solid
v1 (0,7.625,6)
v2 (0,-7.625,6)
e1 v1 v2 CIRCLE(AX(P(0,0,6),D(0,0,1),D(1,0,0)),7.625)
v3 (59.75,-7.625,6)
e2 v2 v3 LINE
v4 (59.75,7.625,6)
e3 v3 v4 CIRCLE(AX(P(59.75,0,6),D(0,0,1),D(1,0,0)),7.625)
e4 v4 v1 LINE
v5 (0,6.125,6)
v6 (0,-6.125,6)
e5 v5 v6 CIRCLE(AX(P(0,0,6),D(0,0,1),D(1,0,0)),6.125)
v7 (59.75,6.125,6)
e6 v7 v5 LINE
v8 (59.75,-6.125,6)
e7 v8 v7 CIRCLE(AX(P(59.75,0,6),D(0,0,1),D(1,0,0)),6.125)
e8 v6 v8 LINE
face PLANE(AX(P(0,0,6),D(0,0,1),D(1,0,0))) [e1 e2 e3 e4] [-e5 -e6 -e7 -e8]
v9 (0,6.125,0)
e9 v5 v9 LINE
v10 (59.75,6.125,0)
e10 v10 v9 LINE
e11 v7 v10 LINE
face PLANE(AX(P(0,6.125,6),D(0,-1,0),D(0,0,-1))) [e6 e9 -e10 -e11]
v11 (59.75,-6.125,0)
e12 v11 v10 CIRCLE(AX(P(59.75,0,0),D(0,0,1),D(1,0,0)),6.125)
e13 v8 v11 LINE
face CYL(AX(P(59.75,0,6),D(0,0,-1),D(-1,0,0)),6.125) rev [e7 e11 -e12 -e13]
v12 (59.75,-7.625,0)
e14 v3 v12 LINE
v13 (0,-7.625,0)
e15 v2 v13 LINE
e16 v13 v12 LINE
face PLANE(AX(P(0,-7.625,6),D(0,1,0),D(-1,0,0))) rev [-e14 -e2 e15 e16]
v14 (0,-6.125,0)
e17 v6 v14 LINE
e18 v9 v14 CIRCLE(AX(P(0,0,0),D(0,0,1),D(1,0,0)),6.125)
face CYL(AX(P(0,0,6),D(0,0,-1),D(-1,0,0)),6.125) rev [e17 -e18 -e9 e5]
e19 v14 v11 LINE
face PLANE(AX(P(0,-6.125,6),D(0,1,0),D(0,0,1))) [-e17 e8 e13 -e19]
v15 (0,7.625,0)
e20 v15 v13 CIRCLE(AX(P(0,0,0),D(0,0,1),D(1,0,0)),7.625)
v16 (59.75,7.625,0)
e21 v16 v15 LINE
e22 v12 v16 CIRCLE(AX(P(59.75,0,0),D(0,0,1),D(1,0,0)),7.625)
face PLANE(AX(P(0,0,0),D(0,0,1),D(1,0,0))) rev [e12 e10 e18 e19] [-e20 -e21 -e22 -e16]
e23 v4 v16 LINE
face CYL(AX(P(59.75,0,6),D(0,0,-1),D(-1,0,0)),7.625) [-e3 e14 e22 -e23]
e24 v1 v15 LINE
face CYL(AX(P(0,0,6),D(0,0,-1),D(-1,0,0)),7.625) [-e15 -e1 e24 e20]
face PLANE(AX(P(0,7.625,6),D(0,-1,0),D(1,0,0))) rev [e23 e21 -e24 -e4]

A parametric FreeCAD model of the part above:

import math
import FreeCAD as App
import Part
import Sketcher

V = App.Vector

doc = App.newDocument("Part")
body = doc.addObject("PartDesign::Body", "Body")

# Sketch on XY plane
sketch1 = body.newObject("Sketcher::SketchObject", "Sketch")
sketch1.AttachmentSupport = (doc.getObject("XY_Plane"), [""])
sketch1.MapMode = "FlatFace"
sketch1.addGeometry(Part.LineSegment(V(59.75, 7.625, 0), V(0, 7.625, 0)), False)
sketch1.addGeometry(Part.ArcOfCircle(Part.Circle(V(0, 0, 0), V(0, 0, 1), 7.625), math.radians(90), math.radians(270)), False)
sketch1.addGeometry(Part.LineSegment(V(0, -7.625, 0), V(59.75, -7.625, 0)), False)
sketch1.addGeometry(Part.ArcOfCircle(Part.Circle(V(59.75, 0, 0), V(0, 0, 1), 7.625), math.radians(-90), math.radians(90)), False)
sketch1.addGeometry(Part.LineSegment(V(0, 6.125, 0), V(59.75, 6.125, 0)), False)
sketch1.addGeometry(Part.ArcOfCircle(Part.Circle(V(59.75, 0, 0), V(0, 0, 1), 6.125), math.radians(-90), math.radians(90)), False)
sketch1.addGeometry(Part.LineSegment(V(59.75, -6.125, 0), V(0, -6.125, 0)), False)
sketch1.addGeometry(Part.ArcOfCircle(Part.Circle(V(0, 0, 0), V(0, 0, 1), 6.125), math.radians(90), math.radians(270)), False)
sketch1.addConstraint(Sketcher.Constraint("Tangent", 0, 2, 1, 1))
sketch1.addConstraint(Sketcher.Constraint("Tangent", 1, 2, 2, 1))
sketch1.addConstraint(Sketcher.Constraint("Tangent", 2, 2, 3, 1))
sketch1.addConstraint(Sketcher.Constraint("Tangent", 3, 2, 0, 1))
sketch1.addConstraint(Sketcher.Constraint("Tangent", 4, 2, 5, 2))
sketch1.addConstraint(Sketcher.Constraint("Tangent", 5, 1, 6, 1))
sketch1.addConstraint(Sketcher.Constraint("Tangent", 6, 2, 7, 2))
sketch1.addConstraint(Sketcher.Constraint("Tangent", 7, 1, 4, 1))
sketch1.addConstraint(Sketcher.Constraint("Horizontal", 0))
sketch1.addConstraint(Sketcher.Constraint("Horizontal", 2))
sketch1.addConstraint(Sketcher.Constraint("Horizontal", 4))
sketch1.addConstraint(Sketcher.Constraint("Horizontal", 6))
sketch1.addConstraint(Sketcher.Constraint("Coincident", 1, 3, -1, 1))
sketch1.addConstraint(Sketcher.Constraint("Coincident", 7, 3, -1, 1))
sketch1.addConstraint(Sketcher.Constraint("Vertical", 5, 3, 2, 2))
sketch1.addConstraint(Sketcher.Constraint("Radius", 1, 7.625))
sketch1.addConstraint(Sketcher.Constraint("Radius", 5, 6.125))
sketch1.addConstraint(Sketcher.Constraint("DistanceX", 0, 2, 0, 1, 59.75))
pad1 = body.newObject("PartDesign::Pad", "Pad")
pad1.Profile = sketch1
pad1.Length = 6

doc.recompute()
